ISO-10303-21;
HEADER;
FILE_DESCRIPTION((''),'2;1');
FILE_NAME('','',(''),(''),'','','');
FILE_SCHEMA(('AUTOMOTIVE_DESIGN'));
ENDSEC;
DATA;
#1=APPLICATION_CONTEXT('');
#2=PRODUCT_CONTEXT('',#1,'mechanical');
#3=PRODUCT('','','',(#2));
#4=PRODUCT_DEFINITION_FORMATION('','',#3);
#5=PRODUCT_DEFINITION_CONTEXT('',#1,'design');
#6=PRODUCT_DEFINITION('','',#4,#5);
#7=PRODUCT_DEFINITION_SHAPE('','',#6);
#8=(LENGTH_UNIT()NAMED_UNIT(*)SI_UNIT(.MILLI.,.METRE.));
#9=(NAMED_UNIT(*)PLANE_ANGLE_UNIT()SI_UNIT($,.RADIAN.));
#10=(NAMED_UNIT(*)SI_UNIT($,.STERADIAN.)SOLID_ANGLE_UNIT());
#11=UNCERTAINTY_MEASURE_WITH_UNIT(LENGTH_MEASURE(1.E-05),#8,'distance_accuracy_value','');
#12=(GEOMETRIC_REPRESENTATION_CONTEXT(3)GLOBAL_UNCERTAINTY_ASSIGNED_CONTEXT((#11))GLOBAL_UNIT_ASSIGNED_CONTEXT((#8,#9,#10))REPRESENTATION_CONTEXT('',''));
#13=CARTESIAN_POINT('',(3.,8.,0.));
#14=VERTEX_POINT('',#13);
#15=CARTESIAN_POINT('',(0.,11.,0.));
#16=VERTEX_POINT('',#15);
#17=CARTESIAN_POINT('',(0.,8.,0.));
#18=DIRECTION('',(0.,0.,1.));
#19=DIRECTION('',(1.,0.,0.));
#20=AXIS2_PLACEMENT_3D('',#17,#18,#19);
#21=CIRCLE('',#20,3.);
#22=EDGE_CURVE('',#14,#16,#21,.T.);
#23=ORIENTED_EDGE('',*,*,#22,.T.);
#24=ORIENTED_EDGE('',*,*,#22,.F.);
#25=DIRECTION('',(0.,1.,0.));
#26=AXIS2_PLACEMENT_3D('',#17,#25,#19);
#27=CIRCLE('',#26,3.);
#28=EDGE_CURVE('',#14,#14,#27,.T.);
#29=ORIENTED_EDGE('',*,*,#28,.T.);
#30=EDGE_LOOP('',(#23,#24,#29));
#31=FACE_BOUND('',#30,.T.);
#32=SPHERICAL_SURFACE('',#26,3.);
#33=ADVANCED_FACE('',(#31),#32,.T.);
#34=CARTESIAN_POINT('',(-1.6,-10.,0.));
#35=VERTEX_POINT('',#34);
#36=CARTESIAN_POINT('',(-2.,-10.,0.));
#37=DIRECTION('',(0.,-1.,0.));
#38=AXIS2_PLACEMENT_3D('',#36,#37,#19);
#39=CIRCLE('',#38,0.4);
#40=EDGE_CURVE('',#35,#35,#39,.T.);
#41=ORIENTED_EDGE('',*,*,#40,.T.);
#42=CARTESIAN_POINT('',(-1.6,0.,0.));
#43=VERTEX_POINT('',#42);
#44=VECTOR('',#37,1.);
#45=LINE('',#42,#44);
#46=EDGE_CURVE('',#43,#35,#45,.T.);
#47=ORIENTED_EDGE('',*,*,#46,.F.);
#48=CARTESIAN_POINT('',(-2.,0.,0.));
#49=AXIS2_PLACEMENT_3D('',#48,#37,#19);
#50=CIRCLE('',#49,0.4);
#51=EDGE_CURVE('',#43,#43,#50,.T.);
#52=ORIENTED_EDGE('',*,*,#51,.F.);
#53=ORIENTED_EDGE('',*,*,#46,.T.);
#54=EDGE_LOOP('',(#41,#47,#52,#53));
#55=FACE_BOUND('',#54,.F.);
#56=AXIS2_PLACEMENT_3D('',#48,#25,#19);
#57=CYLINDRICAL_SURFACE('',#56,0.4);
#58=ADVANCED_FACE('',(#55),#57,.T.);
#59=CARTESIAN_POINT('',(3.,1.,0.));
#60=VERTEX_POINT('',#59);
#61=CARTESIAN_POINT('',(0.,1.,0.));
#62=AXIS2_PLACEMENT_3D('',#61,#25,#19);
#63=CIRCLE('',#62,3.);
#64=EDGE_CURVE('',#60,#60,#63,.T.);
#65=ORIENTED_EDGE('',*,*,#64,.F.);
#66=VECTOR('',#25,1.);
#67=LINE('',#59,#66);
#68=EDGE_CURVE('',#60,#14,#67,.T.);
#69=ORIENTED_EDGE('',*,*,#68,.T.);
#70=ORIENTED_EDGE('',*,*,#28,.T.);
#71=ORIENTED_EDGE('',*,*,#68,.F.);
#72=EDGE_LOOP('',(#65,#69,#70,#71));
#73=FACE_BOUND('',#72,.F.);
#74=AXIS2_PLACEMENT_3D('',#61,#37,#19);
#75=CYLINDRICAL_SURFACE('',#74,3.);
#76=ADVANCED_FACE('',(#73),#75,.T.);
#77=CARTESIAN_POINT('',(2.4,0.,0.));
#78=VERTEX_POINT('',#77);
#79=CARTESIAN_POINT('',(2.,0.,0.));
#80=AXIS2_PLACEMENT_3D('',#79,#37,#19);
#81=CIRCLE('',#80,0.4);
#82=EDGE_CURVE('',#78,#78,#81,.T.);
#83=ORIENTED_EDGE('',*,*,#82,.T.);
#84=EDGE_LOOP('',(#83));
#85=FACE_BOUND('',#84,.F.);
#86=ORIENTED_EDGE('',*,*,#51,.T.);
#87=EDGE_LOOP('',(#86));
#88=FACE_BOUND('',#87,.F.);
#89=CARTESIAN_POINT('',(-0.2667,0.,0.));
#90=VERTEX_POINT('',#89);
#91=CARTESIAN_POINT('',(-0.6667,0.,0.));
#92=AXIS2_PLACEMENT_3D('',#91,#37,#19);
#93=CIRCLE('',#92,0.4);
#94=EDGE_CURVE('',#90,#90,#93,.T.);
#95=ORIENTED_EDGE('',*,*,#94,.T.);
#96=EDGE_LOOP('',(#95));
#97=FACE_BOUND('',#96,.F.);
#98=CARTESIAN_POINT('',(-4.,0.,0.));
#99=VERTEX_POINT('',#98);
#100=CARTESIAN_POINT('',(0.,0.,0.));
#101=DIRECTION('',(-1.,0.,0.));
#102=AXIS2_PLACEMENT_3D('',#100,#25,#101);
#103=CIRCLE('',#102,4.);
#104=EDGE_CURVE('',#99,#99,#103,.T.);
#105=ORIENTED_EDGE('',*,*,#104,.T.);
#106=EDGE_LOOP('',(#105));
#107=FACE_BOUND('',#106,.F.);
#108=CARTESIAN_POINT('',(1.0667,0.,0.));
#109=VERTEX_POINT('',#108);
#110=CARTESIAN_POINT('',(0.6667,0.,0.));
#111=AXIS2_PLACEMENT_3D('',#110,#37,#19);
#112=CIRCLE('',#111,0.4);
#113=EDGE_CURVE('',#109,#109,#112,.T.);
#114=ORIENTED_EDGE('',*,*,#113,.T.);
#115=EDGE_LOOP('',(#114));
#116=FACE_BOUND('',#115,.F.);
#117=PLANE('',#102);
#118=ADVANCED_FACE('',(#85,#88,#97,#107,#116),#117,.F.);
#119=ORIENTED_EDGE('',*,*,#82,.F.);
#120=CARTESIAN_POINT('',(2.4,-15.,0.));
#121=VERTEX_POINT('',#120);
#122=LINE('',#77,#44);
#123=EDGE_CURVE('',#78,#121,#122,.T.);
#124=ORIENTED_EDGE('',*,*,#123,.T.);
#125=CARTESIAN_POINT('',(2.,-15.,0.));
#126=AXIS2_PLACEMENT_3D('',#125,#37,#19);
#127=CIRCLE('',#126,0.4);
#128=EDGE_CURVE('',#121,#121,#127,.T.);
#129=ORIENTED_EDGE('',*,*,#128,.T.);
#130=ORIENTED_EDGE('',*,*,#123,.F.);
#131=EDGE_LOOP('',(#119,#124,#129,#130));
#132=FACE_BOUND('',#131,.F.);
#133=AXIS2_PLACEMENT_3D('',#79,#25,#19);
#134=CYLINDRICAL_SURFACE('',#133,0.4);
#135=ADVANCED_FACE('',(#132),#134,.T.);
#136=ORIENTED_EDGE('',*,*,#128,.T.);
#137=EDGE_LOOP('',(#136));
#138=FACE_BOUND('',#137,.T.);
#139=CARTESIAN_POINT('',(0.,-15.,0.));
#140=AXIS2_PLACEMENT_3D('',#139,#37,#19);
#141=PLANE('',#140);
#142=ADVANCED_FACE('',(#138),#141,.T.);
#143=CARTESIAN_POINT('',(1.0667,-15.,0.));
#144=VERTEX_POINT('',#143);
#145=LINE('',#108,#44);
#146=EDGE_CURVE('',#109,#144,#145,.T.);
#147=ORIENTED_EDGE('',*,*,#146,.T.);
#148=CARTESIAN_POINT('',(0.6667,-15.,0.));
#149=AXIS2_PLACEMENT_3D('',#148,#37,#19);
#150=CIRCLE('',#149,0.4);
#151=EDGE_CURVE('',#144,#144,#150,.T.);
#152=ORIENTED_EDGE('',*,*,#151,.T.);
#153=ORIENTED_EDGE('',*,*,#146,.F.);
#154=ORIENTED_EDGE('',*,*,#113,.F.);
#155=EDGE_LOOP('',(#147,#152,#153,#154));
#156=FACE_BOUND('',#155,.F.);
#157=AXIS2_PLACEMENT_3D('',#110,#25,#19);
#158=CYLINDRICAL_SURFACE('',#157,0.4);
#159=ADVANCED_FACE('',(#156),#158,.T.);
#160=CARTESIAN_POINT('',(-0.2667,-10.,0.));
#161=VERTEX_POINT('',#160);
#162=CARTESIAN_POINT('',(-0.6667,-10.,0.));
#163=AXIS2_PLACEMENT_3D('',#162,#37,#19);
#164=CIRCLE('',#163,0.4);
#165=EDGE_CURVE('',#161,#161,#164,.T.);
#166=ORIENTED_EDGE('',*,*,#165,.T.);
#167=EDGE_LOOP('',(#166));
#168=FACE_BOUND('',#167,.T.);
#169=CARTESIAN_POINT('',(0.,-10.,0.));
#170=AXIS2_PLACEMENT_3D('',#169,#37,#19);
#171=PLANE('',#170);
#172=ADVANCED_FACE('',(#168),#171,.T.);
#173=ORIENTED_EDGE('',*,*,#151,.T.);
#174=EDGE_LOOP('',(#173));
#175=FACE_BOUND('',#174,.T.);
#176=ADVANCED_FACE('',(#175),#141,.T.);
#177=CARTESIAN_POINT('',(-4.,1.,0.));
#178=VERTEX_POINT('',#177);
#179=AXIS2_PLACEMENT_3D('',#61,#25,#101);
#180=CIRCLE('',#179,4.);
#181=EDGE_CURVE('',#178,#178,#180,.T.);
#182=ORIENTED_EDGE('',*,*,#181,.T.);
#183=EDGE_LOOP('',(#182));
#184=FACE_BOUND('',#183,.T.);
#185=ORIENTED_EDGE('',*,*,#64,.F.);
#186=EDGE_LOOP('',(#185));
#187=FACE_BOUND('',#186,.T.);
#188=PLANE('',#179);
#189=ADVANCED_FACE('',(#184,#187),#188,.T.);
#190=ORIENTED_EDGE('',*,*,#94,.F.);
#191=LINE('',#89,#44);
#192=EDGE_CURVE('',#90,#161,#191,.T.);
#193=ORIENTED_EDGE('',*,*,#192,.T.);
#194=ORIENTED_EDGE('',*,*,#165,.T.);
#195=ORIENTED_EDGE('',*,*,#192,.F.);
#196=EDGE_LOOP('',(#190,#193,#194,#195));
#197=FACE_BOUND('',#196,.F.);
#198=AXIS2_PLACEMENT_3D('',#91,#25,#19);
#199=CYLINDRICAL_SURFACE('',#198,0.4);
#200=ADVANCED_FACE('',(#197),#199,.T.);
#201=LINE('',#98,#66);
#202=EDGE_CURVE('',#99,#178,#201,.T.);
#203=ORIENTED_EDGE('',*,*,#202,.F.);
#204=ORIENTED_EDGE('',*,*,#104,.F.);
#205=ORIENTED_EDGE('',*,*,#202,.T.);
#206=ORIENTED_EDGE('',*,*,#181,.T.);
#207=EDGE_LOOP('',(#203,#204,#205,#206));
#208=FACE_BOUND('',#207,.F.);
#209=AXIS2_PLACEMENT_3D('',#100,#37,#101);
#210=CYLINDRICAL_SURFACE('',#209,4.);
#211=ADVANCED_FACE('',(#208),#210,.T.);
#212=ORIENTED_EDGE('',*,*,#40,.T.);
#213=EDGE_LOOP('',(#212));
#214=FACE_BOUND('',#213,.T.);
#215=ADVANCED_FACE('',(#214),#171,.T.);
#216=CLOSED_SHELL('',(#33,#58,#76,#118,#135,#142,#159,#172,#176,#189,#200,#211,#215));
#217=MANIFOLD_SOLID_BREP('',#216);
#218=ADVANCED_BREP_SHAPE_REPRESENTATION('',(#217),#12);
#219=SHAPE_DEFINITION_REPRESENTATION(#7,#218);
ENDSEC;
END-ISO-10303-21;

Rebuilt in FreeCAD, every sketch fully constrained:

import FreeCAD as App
import Part
import Sketcher

V = App.Vector
Q = App.Units.Quantity


def edges_at(feature, points):
    """Names of the edges that pass closest to the given points."""
    edges = feature.Shape.Edges
    near = lambda p: min(range(len(edges)), key=lambda i: edges[i].distToShape(Part.Vertex(*p))[0])
    return sorted({f"Edge{near(p) + 1}" for p in points})

doc = App.newDocument("Part")
body = doc.addObject("PartDesign::Body", "Body")

# Sketch on XZ plane
sketch1 = body.newObject("Sketcher::SketchObject", "Sketch")
sketch1.AttachmentSupport = (doc.getObject("XZ_Plane"), [""])
sketch1.MapMode = "FlatFace"
sketch1.addGeometry(Part.Circle(V(0, 0, 0), V(0, 0, 1), 4), False)
sketch1.addConstraint(Sketcher.Constraint("Coincident", 0, 3, -1, 1))
sketch1.addConstraint(Sketcher.Constraint("Diameter", 0, Q("8 mm")))
pad1 = body.newObject("PartDesign::Pad", "Pad")
pad1.Profile = sketch1
pad1.Length = 1
pad1.Reversed = True

# Sketch on XZ plane
sketch2 = body.newObject("Sketcher::SketchObject", "Sketch001")
sketch2.AttachmentSupport = (doc.getObject("XZ_Plane"), [""])
sketch2.MapMode = "FlatFace"
sketch2.AttachmentOffset = App.Placement(V(0, 0, -1), App.Rotation())
sketch2.addGeometry(Part.Circle(V(0, 0, 0), V(0, 0, 1), 3), False)
sketch2.addConstraint(Sketcher.Constraint("Coincident", 0, 3, -1, 1))
sketch2.addConstraint(Sketcher.Constraint("Diameter", 0, Q("6 mm")))
pad2 = body.newObject("PartDesign::Pad", "Pad001")
pad2.Profile = sketch2
pad2.Length = 10
pad2.Reversed = True
doc.recompute()

fillet = body.newObject("PartDesign::Fillet", "Fillet")
fillet.Base = (pad2, edges_at(pad2, [(-3, 11, 0)]))
fillet.Radius = 3

# Sketch on XZ plane
sketch3 = body.newObject("Sketcher::SketchObject", "Sketch002")
sketch3.AttachmentSupport = (doc.getObject("XZ_Plane"), [""])
sketch3.MapMode = "FlatFace"
sketch3.addGeometry(Part.Circle(V(-2, 0, 0), V(0, 0, 1), 0.4), False)
sketch3.addGeometry(Part.Circle(V(-0.67, 0, 0), V(0, 0, 1), 0.4), False)
sketch3.addConstraint(Sketcher.Constraint("Equal", 0, 1))
sketch3.addConstraint(Sketcher.Constraint("PointOnObject", 0, 3, -1))
sketch3.addConstraint(Sketcher.Constraint("PointOnObject", 1, 3, -1))
sketch3.addConstraint(Sketcher.Constraint("Diameter", 0, Q("0.8 mm")))
sketch3.addConstraint(Sketcher.Constraint("DistanceX", 0, 3, -1, 1, Q("2 mm")))
sketch3.addConstraint(Sketcher.Constraint("DistanceX", 1, 3, -1, 1, Q("0.6667 mm")))
pad3 = body.newObject("PartDesign::Pad", "Pad002")
pad3.Profile = sketch3
pad3.Length = 10

# Sketch on XZ plane
sketch4 = body.newObject("Sketcher::SketchObject", "Sketch003")
sketch4.AttachmentSupport = (doc.getObject("XZ_Plane"), [""])
sketch4.MapMode = "FlatFace"
sketch4.addGeometry(Part.Circle(V(0.67, 0, 0), V(0, 0, 1), 0.4), False)
sketch4.addGeometry(Part.Circle(V(2, 0, 0), V(0, 0, 1), 0.4), False)
sketch4.addConstraint(Sketcher.Constraint("Equal", 0, 1))
sketch4.addConstraint(Sketcher.Constraint("PointOnObject", 0, 3, -1))
sketch4.addConstraint(Sketcher.Constraint("PointOnObject", 1, 3, -1))
sketch4.addConstraint(Sketcher.Constraint("Diameter", 0, Q("0.8 mm")))
sketch4.addConstraint(Sketcher.Constraint("DistanceX", -1, 1, 1, 3, Q("2 mm")))
sketch4.addConstraint(Sketcher.Constraint("DistanceX", -1, 1, 0, 3, Q("0.6667 mm")))
pad4 = body.newObject("PartDesign::Pad", "Pad003")
pad4.Profile = sketch4
pad4.Length = 15

doc.recompute()
